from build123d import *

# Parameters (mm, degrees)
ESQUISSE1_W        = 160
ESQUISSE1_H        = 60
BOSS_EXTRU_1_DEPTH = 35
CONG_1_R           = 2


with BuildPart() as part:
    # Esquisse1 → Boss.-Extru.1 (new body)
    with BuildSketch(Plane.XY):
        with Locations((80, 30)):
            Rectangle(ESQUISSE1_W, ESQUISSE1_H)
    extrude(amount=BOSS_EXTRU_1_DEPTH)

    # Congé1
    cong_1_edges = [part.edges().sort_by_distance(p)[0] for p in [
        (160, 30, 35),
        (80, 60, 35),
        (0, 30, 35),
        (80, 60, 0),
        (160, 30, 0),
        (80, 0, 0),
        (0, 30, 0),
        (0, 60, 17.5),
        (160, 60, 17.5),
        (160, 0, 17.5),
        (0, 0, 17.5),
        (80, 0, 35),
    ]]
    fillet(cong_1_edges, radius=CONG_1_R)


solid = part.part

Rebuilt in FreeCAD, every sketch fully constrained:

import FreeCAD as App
import Part
import Sketcher

V = App.Vector
Q = App.Units.Quantity


def add_polygon(sketch, points):
    """Adds a closed chain of lines whose ends are joined by coincident constraints."""
    first, n = sketch.GeometryCount, len(points)
    for a, b in zip(points, points[1:] + points[:1]):
        sketch.addGeometry(Part.LineSegment(App.Vector(*a, 0), App.Vector(*b, 0)), False)
    for i in range(n):
        sketch.addConstraint(Sketcher.Constraint("Coincident", first + i, 2, first + (i + 1) % n, 1))

doc = App.newDocument("Part")
body = doc.addObject("PartDesign::Body", "Body")

# Sketch on XY plane
sketch1 = body.newObject("Sketcher::SketchObject", "Sketch")
sketch1.AttachmentSupport = (doc.getObject("XY_Plane"), [""])
sketch1.MapMode = "FlatFace"
add_polygon(sketch1, [(0, 60), (0, 0), (160, 0), (160, 60)])  # lines 0-3
sketch1.addConstraint(Sketcher.Constraint("Vertical", 0))
sketch1.addConstraint(Sketcher.Constraint("Horizontal", 1))
sketch1.addConstraint(Sketcher.Constraint("Vertical", 2))
sketch1.addConstraint(Sketcher.Constraint("Horizontal", 3))
sketch1.addConstraint(Sketcher.Constraint("Coincident", 0, 2, -1, 1))
sketch1.addConstraint(Sketcher.Constraint("DistanceX", 1, 1, 1, 2, Q("160 mm")))
sketch1.addConstraint(Sketcher.Constraint("DistanceY", 0, 2, 0, 1, Q("60 mm")))
pad1 = body.newObject("PartDesign::Pad", "Pad")
pad1.Profile = sketch1
pad1.Length = 35
doc.recompute()

fillet = body.newObject("PartDesign::Fillet", "Fillet")
fillet.Base = (pad1, ["Edge1"])
fillet.UseAllEdges = True
fillet.Radius = 2

doc.recompute()
